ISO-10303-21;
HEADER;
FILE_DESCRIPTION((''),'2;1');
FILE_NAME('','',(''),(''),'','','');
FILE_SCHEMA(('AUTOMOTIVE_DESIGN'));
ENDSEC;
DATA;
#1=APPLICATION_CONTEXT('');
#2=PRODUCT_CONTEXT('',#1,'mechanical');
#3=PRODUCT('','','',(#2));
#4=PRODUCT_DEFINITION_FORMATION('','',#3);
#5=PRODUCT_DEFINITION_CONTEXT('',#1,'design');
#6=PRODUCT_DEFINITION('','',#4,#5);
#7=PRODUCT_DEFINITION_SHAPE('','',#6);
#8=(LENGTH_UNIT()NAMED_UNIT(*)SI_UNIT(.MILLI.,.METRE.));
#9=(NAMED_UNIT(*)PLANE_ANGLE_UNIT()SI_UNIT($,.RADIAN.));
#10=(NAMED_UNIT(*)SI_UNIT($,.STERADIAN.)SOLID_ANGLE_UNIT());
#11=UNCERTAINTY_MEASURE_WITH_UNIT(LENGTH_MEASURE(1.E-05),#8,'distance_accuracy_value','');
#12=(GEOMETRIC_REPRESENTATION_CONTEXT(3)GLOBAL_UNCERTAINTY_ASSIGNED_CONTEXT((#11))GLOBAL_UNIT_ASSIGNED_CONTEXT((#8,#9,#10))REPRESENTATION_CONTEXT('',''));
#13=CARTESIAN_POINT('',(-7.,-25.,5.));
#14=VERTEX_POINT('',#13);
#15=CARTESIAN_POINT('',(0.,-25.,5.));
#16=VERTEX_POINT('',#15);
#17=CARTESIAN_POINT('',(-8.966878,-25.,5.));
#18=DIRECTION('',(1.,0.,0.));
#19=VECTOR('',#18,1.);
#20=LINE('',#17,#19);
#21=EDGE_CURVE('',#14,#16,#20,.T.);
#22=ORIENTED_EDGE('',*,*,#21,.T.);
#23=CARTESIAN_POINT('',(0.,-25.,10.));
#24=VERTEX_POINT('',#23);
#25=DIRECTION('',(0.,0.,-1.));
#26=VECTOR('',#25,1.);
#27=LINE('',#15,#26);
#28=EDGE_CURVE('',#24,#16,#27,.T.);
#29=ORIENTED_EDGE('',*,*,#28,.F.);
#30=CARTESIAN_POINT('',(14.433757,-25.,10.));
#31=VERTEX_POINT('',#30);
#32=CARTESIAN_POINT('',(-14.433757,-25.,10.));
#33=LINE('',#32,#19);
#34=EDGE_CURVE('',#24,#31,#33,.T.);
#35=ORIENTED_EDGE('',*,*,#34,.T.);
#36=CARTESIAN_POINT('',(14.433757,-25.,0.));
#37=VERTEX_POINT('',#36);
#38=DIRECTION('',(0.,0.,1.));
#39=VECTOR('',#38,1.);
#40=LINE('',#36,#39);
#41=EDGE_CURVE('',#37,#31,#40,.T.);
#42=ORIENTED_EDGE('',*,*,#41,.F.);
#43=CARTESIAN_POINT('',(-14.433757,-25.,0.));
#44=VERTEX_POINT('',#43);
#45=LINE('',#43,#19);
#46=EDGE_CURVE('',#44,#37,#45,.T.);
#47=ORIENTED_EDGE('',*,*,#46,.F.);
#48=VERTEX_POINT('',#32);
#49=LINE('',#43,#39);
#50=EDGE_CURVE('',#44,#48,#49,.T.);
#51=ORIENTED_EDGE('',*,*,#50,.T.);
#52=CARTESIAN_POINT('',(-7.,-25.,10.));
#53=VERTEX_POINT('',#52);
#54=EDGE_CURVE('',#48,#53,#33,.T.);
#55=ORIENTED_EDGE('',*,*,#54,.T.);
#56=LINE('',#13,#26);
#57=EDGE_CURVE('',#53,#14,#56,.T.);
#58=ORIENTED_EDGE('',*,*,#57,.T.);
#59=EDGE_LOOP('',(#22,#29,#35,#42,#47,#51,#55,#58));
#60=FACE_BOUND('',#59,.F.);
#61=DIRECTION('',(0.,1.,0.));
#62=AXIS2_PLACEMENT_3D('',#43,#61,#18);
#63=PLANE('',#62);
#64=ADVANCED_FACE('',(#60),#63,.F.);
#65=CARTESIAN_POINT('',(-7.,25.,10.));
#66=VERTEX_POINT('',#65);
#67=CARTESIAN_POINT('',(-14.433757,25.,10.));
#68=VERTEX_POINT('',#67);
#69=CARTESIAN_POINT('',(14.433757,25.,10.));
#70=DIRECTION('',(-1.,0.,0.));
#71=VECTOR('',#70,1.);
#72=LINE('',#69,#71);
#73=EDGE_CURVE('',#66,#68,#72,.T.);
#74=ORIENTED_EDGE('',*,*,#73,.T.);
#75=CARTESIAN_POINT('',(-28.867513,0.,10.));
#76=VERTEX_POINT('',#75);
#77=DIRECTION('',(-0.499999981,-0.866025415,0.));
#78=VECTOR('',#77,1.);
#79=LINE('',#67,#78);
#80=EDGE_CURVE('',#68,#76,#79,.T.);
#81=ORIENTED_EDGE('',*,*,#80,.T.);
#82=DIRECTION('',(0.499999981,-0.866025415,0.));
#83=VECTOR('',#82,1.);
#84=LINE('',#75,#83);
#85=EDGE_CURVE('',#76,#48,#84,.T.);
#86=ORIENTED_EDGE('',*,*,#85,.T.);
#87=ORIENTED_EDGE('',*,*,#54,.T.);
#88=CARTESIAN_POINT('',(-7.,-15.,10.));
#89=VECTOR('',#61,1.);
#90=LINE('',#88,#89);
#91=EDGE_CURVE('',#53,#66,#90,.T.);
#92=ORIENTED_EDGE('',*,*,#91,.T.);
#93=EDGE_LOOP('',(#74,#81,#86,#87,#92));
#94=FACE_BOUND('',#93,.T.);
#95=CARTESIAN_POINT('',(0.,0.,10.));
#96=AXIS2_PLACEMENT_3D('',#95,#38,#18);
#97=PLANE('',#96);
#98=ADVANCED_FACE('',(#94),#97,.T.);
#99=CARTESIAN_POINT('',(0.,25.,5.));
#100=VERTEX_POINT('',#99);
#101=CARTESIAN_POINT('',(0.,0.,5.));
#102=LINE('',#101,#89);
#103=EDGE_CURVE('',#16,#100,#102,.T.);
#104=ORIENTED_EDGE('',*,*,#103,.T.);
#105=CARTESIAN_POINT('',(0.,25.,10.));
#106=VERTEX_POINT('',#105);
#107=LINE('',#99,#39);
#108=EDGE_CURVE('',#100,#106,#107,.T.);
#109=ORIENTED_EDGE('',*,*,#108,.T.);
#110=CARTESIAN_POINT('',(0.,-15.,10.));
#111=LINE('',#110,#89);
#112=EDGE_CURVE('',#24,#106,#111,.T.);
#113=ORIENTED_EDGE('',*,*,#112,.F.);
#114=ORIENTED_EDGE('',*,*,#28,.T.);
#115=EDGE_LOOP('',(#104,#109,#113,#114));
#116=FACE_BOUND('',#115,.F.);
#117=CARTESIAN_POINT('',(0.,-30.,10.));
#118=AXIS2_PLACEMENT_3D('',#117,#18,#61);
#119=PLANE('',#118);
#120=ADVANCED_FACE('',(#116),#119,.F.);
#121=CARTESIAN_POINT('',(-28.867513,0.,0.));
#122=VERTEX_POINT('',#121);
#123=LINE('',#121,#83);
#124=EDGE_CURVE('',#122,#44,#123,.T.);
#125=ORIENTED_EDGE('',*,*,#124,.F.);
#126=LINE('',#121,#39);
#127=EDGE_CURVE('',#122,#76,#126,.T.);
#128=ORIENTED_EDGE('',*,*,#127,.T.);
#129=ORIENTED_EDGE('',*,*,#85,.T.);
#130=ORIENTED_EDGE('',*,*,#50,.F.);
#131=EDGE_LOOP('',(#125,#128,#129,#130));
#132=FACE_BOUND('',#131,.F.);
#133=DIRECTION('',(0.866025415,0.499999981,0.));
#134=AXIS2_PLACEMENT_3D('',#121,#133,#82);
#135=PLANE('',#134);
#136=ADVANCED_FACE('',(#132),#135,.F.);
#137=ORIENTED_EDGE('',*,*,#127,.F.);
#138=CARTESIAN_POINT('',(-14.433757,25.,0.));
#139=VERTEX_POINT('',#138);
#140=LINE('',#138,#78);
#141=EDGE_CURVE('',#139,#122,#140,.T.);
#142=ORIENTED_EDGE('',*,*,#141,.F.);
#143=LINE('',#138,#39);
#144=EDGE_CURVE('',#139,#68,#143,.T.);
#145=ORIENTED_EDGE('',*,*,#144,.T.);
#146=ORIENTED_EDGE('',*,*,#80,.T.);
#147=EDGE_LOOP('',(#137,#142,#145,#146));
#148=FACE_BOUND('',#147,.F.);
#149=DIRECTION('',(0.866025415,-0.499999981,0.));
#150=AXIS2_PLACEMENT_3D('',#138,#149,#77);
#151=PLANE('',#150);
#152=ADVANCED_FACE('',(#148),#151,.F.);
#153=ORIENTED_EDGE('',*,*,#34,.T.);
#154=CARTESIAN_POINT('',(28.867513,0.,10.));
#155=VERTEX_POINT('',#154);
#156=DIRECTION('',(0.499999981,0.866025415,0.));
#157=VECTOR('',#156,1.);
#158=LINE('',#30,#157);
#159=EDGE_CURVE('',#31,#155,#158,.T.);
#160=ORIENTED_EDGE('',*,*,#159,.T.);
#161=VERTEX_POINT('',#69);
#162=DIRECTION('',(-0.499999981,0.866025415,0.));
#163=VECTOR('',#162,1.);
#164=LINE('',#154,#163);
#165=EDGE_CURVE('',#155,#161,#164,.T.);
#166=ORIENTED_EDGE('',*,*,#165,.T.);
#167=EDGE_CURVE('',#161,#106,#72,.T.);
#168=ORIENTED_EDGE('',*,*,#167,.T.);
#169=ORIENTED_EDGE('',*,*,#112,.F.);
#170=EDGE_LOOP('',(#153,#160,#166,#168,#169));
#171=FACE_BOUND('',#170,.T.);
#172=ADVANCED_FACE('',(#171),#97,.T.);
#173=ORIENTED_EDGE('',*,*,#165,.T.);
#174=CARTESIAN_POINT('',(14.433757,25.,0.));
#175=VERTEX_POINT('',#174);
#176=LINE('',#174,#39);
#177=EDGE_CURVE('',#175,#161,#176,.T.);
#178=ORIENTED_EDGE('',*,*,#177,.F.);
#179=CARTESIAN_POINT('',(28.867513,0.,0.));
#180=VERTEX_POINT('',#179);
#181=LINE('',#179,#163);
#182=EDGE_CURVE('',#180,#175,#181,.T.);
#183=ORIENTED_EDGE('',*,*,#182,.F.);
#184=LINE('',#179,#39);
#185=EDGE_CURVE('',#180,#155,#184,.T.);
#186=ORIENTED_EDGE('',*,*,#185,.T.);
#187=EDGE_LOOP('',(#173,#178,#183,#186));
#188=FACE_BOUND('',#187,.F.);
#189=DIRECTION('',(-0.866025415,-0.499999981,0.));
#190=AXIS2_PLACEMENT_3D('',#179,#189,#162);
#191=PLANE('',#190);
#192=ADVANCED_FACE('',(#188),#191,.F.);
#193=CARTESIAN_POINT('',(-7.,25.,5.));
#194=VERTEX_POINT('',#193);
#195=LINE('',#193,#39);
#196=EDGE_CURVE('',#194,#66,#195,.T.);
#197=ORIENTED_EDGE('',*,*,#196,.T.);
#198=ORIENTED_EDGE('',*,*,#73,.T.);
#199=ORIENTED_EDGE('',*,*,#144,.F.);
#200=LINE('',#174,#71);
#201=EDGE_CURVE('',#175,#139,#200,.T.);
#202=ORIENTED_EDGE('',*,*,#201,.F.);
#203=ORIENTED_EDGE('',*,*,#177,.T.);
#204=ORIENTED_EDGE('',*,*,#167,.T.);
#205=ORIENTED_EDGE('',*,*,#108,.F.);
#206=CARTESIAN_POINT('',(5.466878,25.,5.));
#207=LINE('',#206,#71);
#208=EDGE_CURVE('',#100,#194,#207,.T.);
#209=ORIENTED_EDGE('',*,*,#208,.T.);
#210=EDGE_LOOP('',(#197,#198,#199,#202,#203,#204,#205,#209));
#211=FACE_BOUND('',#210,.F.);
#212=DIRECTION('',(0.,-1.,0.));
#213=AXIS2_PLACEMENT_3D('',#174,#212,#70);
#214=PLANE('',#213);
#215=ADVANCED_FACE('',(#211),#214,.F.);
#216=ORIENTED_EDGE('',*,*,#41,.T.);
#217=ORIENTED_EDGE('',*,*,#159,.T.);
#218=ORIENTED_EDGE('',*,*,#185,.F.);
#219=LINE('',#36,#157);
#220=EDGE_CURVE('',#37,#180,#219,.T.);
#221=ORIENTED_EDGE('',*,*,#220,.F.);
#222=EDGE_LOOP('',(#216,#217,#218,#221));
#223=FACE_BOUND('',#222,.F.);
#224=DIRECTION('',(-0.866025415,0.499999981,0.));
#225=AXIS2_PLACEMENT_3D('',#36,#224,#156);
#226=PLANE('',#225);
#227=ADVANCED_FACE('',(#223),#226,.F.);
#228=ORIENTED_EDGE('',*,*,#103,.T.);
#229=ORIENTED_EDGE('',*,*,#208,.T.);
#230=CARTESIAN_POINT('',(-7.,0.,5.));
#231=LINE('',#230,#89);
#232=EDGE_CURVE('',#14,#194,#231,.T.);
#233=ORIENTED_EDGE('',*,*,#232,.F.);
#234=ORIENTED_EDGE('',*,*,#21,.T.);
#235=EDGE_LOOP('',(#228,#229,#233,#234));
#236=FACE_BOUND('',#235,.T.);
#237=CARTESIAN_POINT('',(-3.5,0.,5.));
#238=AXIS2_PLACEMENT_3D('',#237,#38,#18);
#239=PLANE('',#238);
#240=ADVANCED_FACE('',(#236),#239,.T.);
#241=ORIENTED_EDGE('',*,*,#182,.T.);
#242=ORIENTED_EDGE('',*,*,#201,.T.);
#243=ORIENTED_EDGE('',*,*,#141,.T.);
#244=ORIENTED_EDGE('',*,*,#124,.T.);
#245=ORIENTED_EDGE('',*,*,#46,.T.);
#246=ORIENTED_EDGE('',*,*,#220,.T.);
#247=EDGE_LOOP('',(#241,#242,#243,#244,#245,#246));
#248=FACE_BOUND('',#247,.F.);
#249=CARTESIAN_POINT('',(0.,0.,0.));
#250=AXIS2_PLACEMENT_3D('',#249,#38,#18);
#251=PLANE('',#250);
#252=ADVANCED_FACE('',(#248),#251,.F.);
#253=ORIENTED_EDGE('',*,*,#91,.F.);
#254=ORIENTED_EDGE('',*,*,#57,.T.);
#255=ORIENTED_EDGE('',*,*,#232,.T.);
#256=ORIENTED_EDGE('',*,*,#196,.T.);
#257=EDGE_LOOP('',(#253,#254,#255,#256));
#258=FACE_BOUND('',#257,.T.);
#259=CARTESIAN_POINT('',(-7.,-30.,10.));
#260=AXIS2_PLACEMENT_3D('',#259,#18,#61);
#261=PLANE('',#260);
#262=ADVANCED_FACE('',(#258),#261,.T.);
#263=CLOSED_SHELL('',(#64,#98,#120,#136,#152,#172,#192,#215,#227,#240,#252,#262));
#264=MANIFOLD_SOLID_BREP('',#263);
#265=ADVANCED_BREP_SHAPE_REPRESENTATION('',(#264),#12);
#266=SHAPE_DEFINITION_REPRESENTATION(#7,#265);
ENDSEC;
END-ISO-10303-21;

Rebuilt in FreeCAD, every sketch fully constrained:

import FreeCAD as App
import Part
import Sketcher
Q = App.Units.Quantity

doc = App.newDocument("Part")
params = doc.addObject("Spreadsheet::Sheet", "Params")
for row, (alias, value) in enumerate([
    ("sketch1_width", "7 mm"),
    ("sketch1_height", "60 mm"),
    ("pad1_length", "1 mm"),
    ("pad1_length2", "5 mm"),
    ("pad2_length", "10 mm"),
], start=1):
    params.set(f"A{row}", alias)
    params.set(f"B{row}", "=" + value)
    params.setAlias(f"B{row}", alias)

body = doc.addObject("PartDesign::Body", "Body")

# Sketch on XY plane
sketch1 = body.newObject("Sketcher::SketchObject", "Sketch")
sketch1.AttachmentSupport = (doc.getObject("XY_Plane"), [""])
sketch1.MapMode = "FlatFace"
sketch1.AttachmentOffset = App.Placement(App.Vector(0, 0, 10), App.Rotation())
sketch1.addGeometry(Part.LineSegment(App.Vector(-7, 30, 0), App.Vector(-7, -30, 0)), False)
sketch1.addGeometry(Part.LineSegment(App.Vector(-7, -30, 0), App.Vector(0, -30, 0)), False)
sketch1.addGeometry(Part.LineSegment(App.Vector(0, -30, 0), App.Vector(0, 30, 0)), False)
sketch1.addGeometry(Part.LineSegment(App.Vector(0, 30, 0), App.Vector(-7, 30, 0)), False)
sketch1.addConstraint(Sketcher.Constraint("Coincident", 0, 2, 1, 1))
sketch1.addConstraint(Sketcher.Constraint("Coincident", 1, 2, 2, 1))
sketch1.addConstraint(Sketcher.Constraint("Coincident", 2, 2, 3, 1))
sketch1.addConstraint(Sketcher.Constraint("Coincident", 3, 2, 0, 1))
sketch1.addConstraint(Sketcher.Constraint("Vertical", 0))
sketch1.addConstraint(Sketcher.Constraint("Horizontal", 1))
sketch1.addConstraint(Sketcher.Constraint("Vertical", 2))
sketch1.addConstraint(Sketcher.Constraint("Horizontal", 3))
sketch1.addConstraint(Sketcher.Constraint("Symmetric", 1, 2, 2, 2, -1, 1))
sketch1.addConstraint(Sketcher.Constraint("DistanceX", 1, 1, 1, 2, Q("7 mm")))
sketch1.addConstraint(Sketcher.Constraint("DistanceY", 0, 2, 0, 1, Q("60 mm")))
sketch1.setExpression("Constraints[9]", "Params.sketch1_width")
sketch1.setExpression("Constraints[10]", "Params.sketch1_height")
pad1 = body.newObject("PartDesign::Pad", "Pad")
pad1.Profile = sketch1
pad1.Type = "TwoLengths"
pad1.setExpression("Length", "Params.pad1_length")
pad1.setExpression("Length2", "Params.pad1_length2")
body2 = doc.addObject("PartDesign::Body", "Body001")

# Sketch on XY plane
sketch2 = body2.newObject("Sketcher::SketchObject", "Sketch001")
sketch2.AttachmentSupport = (doc.getObject("XY_Plane001"), [""])
sketch2.MapMode = "FlatFace"
sketch2.addGeometry(Part.LineSegment(App.Vector(29, 0, 0), App.Vector(14, 25, 0)), False)
sketch2.addGeometry(Part.LineSegment(App.Vector(14, 25, 0), App.Vector(-14, 25, 0)), False)
sketch2.addGeometry(Part.LineSegment(App.Vector(-14, 25, 0), App.Vector(-29, 0, 0)), False)
sketch2.addGeometry(Part.LineSegment(App.Vector(-29, 0, 0), App.Vector(-14, -25, 0)), False)
sketch2.addGeometry(Part.LineSegment(App.Vector(-14, -25, 0), App.Vector(14, -25, 0)), False)
sketch2.addGeometry(Part.LineSegment(App.Vector(14, -25, 0), App.Vector(29, 0, 0)), False)
sketch2.addConstraint(Sketcher.Constraint("Coincident", 0, 2, 1, 1))
sketch2.addConstraint(Sketcher.Constraint("Coincident", 1, 2, 2, 1))
sketch2.addConstraint(Sketcher.Constraint("Coincident", 2, 2, 3, 1))
sketch2.addConstraint(Sketcher.Constraint("Coincident", 3, 2, 4, 1))
sketch2.addConstraint(Sketcher.Constraint("Coincident", 4, 2, 5, 1))
sketch2.addConstraint(Sketcher.Constraint("Coincident", 5, 2, 0, 1))
sketch2.addConstraint(Sketcher.Constraint("Horizontal", 1))
sketch2.addConstraint(Sketcher.Constraint("Horizontal", 4))
sketch2.addConstraint(Sketcher.Constraint("Symmetric", 0, 2, 3, 2, -1, 1))
sketch2.addConstraint(Sketcher.Constraint("Symmetric", 2, 2, 5, 2, -1, 1))
sketch2.addConstraint(Sketcher.Constraint("PointOnObject", 2, 2, -1))
sketch2.addConstraint(Sketcher.Constraint("Parallel", 2, 5))
sketch2.addConstraint(Sketcher.Constraint("Vertical", 1, 2, 3, 2))
sketch2.addConstraint(Sketcher.Constraint("Angle", 0, Q("119.999999 deg")))
sketch2.addConstraint(Sketcher.Constraint("DistanceY", -1, 1, 0, 2, Q("25 mm")))
sketch2.addConstraint(Sketcher.Constraint("DistanceX", 1, 2, 1, 1, Q("28.867514 mm")))
pad2 = body2.newObject("PartDesign::Pad", "Pad001")
pad2.Profile = sketch2
pad2.setExpression("Length", "Params.pad2_length")
doc.recompute()

boolean = body2.newObject("PartDesign::Boolean", "Boolean")
boolean.Type = "Cut"
boolean.addObjects([body])

doc.recompute()
